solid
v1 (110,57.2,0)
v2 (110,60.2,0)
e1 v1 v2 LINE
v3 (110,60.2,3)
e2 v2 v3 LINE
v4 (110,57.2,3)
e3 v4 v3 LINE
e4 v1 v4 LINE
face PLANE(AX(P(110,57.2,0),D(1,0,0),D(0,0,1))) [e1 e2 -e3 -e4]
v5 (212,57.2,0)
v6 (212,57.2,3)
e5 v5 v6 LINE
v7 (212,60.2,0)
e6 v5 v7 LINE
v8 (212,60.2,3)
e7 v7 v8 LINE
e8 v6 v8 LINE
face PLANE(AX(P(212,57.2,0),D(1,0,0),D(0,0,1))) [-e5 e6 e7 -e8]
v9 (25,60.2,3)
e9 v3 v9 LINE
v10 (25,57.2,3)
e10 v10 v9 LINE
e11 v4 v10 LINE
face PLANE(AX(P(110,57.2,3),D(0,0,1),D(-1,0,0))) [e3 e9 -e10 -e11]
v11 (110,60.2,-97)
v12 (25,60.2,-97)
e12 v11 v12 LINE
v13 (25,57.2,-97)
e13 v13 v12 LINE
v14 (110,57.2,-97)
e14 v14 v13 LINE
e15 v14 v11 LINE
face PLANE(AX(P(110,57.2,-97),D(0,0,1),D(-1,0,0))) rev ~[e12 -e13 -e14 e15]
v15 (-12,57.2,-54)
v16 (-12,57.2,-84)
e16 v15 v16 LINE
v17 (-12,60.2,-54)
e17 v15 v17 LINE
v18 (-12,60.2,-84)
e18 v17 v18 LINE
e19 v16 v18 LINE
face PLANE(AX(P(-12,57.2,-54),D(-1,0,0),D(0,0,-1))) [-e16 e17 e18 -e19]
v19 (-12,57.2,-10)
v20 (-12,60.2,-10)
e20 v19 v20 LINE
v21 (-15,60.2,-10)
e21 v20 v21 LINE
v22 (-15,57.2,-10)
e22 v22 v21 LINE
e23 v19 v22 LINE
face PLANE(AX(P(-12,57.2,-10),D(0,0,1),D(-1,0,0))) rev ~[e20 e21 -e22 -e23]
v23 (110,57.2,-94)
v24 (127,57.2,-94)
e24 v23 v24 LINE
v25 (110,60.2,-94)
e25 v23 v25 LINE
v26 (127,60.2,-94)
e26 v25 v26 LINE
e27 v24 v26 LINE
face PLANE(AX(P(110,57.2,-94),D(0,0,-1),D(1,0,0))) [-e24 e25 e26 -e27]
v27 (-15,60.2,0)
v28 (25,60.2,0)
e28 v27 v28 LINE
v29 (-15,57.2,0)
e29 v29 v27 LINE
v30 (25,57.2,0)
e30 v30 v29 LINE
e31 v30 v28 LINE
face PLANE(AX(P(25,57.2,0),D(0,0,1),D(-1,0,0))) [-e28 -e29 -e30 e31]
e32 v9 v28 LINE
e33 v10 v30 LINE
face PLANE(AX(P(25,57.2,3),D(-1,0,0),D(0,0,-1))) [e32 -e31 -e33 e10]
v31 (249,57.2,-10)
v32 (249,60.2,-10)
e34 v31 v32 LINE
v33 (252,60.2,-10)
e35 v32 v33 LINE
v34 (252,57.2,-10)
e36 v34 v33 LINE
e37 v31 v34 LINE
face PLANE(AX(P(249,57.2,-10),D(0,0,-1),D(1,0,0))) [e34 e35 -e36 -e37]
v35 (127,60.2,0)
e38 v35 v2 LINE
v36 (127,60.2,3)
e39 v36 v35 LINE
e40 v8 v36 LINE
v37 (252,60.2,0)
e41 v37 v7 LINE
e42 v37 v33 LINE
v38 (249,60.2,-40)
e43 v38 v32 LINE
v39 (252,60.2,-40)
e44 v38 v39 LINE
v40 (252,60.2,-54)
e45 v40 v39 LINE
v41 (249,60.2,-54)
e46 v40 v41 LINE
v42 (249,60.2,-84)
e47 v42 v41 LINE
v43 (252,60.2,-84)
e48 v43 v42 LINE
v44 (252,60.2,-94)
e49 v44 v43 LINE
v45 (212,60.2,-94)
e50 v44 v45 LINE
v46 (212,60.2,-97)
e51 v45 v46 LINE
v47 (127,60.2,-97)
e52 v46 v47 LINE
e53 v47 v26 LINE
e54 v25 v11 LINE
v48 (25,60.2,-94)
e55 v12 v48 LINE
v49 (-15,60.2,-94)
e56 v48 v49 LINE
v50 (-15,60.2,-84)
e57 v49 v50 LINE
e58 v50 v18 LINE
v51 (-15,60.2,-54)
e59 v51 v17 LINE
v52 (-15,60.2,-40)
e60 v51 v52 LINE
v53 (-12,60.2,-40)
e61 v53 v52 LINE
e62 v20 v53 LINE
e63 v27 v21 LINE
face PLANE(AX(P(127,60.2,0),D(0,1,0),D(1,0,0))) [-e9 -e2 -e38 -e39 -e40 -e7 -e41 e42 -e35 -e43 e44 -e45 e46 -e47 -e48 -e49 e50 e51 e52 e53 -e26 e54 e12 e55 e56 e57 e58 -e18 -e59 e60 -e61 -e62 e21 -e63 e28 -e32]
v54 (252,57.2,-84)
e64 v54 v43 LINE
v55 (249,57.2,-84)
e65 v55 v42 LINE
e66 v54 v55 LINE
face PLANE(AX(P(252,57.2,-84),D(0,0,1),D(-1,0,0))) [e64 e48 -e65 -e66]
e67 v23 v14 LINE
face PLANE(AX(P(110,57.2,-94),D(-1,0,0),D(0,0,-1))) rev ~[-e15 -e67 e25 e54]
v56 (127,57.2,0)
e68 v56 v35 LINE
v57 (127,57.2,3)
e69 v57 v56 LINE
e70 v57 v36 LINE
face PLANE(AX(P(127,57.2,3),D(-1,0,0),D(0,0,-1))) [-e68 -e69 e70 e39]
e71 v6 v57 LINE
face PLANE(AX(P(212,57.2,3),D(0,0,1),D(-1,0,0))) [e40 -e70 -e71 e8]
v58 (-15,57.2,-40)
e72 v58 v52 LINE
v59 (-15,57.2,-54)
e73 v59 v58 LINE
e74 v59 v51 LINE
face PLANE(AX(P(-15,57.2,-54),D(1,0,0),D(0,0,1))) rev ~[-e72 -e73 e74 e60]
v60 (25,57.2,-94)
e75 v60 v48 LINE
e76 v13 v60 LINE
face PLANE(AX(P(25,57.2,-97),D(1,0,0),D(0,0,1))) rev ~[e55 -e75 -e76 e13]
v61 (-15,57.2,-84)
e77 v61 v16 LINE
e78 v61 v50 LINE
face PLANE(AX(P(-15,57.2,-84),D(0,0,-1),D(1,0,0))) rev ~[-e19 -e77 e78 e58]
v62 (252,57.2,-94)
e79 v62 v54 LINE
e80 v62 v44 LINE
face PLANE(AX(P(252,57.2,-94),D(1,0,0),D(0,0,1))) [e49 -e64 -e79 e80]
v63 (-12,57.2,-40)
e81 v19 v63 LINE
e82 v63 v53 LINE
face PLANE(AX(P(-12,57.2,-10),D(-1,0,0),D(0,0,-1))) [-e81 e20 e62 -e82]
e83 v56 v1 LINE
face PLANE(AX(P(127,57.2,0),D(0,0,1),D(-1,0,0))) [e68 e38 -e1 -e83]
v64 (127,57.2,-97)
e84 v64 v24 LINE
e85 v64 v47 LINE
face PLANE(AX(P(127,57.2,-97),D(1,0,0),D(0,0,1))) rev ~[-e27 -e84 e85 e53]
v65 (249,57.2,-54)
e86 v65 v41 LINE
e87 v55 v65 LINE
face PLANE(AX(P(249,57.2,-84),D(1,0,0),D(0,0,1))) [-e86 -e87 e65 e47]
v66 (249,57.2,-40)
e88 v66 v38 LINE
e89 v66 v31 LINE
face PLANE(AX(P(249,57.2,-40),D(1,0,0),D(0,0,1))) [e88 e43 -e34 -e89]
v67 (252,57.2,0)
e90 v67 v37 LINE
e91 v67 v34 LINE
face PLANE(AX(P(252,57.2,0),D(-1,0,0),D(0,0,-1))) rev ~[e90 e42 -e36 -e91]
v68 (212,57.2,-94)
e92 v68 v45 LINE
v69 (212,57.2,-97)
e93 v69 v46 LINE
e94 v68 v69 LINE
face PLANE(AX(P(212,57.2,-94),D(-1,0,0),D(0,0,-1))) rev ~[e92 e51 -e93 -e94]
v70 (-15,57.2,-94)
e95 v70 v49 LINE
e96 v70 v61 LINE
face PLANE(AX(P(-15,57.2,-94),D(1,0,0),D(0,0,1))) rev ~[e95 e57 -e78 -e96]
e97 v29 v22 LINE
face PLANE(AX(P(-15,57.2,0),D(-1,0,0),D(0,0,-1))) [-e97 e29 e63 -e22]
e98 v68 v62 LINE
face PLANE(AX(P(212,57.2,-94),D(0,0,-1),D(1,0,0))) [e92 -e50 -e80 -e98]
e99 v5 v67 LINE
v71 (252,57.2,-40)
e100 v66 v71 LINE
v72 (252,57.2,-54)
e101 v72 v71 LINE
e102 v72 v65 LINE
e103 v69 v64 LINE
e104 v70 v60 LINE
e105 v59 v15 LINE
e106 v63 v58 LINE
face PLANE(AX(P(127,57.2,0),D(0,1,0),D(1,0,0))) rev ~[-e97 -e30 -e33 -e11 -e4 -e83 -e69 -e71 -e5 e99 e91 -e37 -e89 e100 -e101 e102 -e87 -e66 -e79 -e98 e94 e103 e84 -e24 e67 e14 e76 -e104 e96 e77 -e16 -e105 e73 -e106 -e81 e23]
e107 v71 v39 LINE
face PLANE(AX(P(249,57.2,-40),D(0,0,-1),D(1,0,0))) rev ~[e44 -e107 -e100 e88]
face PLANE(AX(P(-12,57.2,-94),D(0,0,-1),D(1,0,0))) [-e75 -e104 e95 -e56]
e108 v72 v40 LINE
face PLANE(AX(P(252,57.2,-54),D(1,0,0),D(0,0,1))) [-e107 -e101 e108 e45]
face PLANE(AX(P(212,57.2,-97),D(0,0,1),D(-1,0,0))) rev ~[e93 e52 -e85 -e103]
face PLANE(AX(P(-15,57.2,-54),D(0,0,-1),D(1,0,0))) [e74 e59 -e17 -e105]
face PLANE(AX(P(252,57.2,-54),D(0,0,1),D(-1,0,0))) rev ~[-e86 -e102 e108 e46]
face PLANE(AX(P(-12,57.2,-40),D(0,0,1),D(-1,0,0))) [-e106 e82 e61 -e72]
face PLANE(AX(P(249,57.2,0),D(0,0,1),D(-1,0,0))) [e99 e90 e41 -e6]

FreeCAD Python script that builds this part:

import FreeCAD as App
import Part
import Sketcher

V = App.Vector

doc = App.newDocument("Part")
body = doc.addObject("PartDesign::Body", "Body")

# Sketch on XZ plane
sketch1 = body.newObject("Sketcher::SketchObject", "Sketch")
sketch1.AttachmentSupport = (doc.getObject("XZ_Plane"), [""])
sketch1.MapMode = "FlatFace"
sketch1.AttachmentOffset = App.Placement(V(0, 0, -57.2), App.Rotation())
sketch1.addGeometry([
    Part.LineSegment(V(212, 0, 0), V(252, 0, 0)),  # 0
    Part.LineSegment(V(252, 0, 0), V(252, -10, 0)),  # 1
    Part.LineSegment(V(252, -10, 0), V(249, -10, 0)),  # 2
    Part.LineSegment(V(249, -10, 0), V(249, -40, 0)),  # 3
    Part.LineSegment(V(249, -40, 0), V(252, -40, 0)),  # 4
    Part.LineSegment(V(252, -40, 0), V(252, -54, 0)),  # 5
    Part.LineSegment(V(252, -54, 0), V(249, -54, 0)),  # 6
    Part.LineSegment(V(249, -54, 0), V(249, -84, 0)),  # 7
    Part.LineSegment(V(249, -84, 0), V(252, -84, 0)),  # 8
    Part.LineSegment(V(252, -84, 0), V(252, -94, 0)),  # 9
    Part.LineSegment(V(252, -94, 0), V(212, -94, 0)),  # 10
    Part.LineSegment(V(212, -94, 0), V(212, -97, 0)),  # 11
    Part.LineSegment(V(212, -97, 0), V(127, -97, 0)),  # 12
    Part.LineSegment(V(127, -97, 0), V(127, -94, 0)),  # 13
    Part.LineSegment(V(127, -94, 0), V(110, -94, 0)),  # 14
    Part.LineSegment(V(110, -94, 0), V(110, -97, 0)),  # 15
    Part.LineSegment(V(110, -97, 0), V(25, -97, 0)),  # 16
    Part.LineSegment(V(25, -97, 0), V(25, -94, 0)),  # 17
    Part.LineSegment(V(25, -94, 0), V(-15, -94, 0)),  # 18
    Part.LineSegment(V(-15, -94, 0), V(-15, -84, 0)),  # 19
    Part.LineSegment(V(-15, -84, 0), V(-12, -84, 0)),  # 20
    Part.LineSegment(V(-12, -84, 0), V(-12, -54, 0)),  # 21
    Part.LineSegment(V(-12, -54, 0), V(-15, -54, 0)),  # 22
    Part.LineSegment(V(-15, -54, 0), V(-15, -40, 0)),  # 23
    Part.LineSegment(V(-15, -40, 0), V(-12, -40, 0)),  # 24
    Part.LineSegment(V(-12, -40, 0), V(-12, -10, 0)),  # 25
    Part.LineSegment(V(-12, -10, 0), V(-15, -10, 0)),  # 26
    Part.LineSegment(V(-15, -10, 0), V(-15, 0, 0)),  # 27
    Part.LineSegment(V(-15, 0, 0), V(25, 0, 0)),  # 28
    Part.LineSegment(V(25, 0, 0), V(25, 3, 0)),  # 29
    Part.LineSegment(V(25, 3, 0), V(110, 3, 0)),  # 30
    Part.LineSegment(V(110, 3, 0), V(110, 0, 0)),  # 31
    Part.LineSegment(V(110, 0, 0), V(127, 0, 0)),  # 32
    Part.LineSegment(V(127, 0, 0), V(127, 3, 0)),  # 33
    Part.LineSegment(V(127, 3, 0), V(212, 3, 0)),  # 34
    Part.LineSegment(V(212, 3, 0), V(212, 0, 0)),  # 35
], False)
sketch1.addConstraint([
    Sketcher.Constraint("Coincident", 0, 2, 1, 1),
    Sketcher.Constraint("Coincident", 1, 2, 2, 1),
    Sketcher.Constraint("Coincident", 2, 2, 3, 1),
    Sketcher.Constraint("Coincident", 3, 2, 4, 1),
    Sketcher.Constraint("Coincident", 4, 2, 5, 1),
    Sketcher.Constraint("Coincident", 5, 2, 6, 1),
    Sketcher.Constraint("Coincident", 6, 2, 7, 1),
    Sketcher.Constraint("Coincident", 7, 2, 8, 1),
    Sketcher.Constraint("Coincident", 8, 2, 9, 1),
    Sketcher.Constraint("Coincident", 9, 2, 10, 1),
    Sketcher.Constraint("Coincident", 10, 2, 11, 1),
    Sketcher.Constraint("Coincident", 11, 2, 12, 1),
    Sketcher.Constraint("Coincident", 12, 2, 13, 1),
    Sketcher.Constraint("Coincident", 13, 2, 14, 1),
    Sketcher.Constraint("Coincident", 14, 2, 15, 1),
    Sketcher.Constraint("Coincident", 15, 2, 16, 1),
    Sketcher.Constraint("Coincident", 16, 2, 17, 1),
    Sketcher.Constraint("Coincident", 17, 2, 18, 1),
    Sketcher.Constraint("Coincident", 18, 2, 19, 1),
    Sketcher.Constraint("Coincident", 19, 2, 20, 1),
    Sketcher.Constraint("Coincident", 20, 2, 21, 1),
    Sketcher.Constraint("Coincident", 21, 2, 22, 1),
    Sketcher.Constraint("Coincident", 22, 2, 23, 1),
    Sketcher.Constraint("Coincident", 23, 2, 24, 1),
    Sketcher.Constraint("Coincident", 24, 2, 25, 1),
    Sketcher.Constraint("Coincident", 25, 2, 26, 1),
    Sketcher.Constraint("Coincident", 26, 2, 27, 1),
    Sketcher.Constraint("Coincident", 27, 2, 28, 1),
    Sketcher.Constraint("Coincident", 28, 2, 29, 1),
    Sketcher.Constraint("Coincident", 29, 2, 30, 1),
    Sketcher.Constraint("Coincident", 30, 2, 31, 1),
    Sketcher.Constraint("Coincident", 31, 2, 32, 1),
    Sketcher.Constraint("Coincident", 32, 2, 33, 1),
    Sketcher.Constraint("Coincident", 33, 2, 34, 1),
    Sketcher.Constraint("Coincident", 34, 2, 35, 1),
    Sketcher.Constraint("Coincident", 35, 2, 0, 1),
    Sketcher.Constraint("Horizontal", 0),
    Sketcher.Constraint("Vertical", 1),
    Sketcher.Constraint("Horizontal", 2),
    Sketcher.Constraint("Vertical", 3),
    Sketcher.Constraint("Horizontal", 4),
    Sketcher.Constraint("Vertical", 5),
    Sketcher.Constraint("Horizontal", 6),
    Sketcher.Constraint("Vertical", 7),
    Sketcher.Constraint("Horizontal", 8),
    Sketcher.Constraint("Vertical", 9),
    Sketcher.Constraint("Horizontal", 10),
    Sketcher.Constraint("Vertical", 11),
    Sketcher.Constraint("Horizontal", 12),
    Sketcher.Constraint("Vertical", 13),
    Sketcher.Constraint("Horizontal", 14),
    Sketcher.Constraint("Vertical", 15),
    Sketcher.Constraint("Horizontal", 16),
    Sketcher.Constraint("Vertical", 17),
    Sketcher.Constraint("Horizontal", 18),
    Sketcher.Constraint("Vertical", 19),
    Sketcher.Constraint("Horizontal", 20),
    Sketcher.Constraint("Vertical", 21),
    Sketcher.Constraint("Horizontal", 22),
    Sketcher.Constraint("Vertical", 23),
    Sketcher.Constraint("Horizontal", 24),
    Sketcher.Constraint("Vertical", 25),
    Sketcher.Constraint("Horizontal", 26),
    Sketcher.Constraint("Vertical", 27),
    Sketcher.Constraint("Horizontal", 28),
    Sketcher.Constraint("Vertical", 29),
    Sketcher.Constraint("Horizontal", 30),
    Sketcher.Constraint("Vertical", 31),
    Sketcher.Constraint("Horizontal", 32),
    Sketcher.Constraint("Vertical", 33),
    Sketcher.Constraint("Horizontal", 34),
    Sketcher.Constraint("Vertical", 35),
    Sketcher.Constraint("PointOnObject", 0, 2, -1),
    Sketcher.Constraint("PointOnObject", 27, 2, -1),
    Sketcher.Constraint("PointOnObject", 31, 2, -1),
    Sketcher.Constraint("Horizontal", 10, 2, 13, 2),
    Sketcher.Constraint("Horizontal", 12, 2, 15, 2),
    Sketcher.Constraint("Horizontal", 14, 2, 17, 2),
    Sketcher.Constraint("Horizontal", 8, 2, 19, 2),
    Sketcher.Constraint("Horizontal", 6, 2, 21, 2),
    Sketcher.Constraint("Horizontal", 4, 2, 23, 2),
    Sketcher.Constraint("Horizontal", 2, 2, 25, 2),
    Sketcher.Constraint("Horizontal", 30, 2, 33, 2),
    Sketcher.Constraint("Vertical", 1, 2, 4, 2),
    Sketcher.Constraint("Vertical", 3, 2, 6, 2),
    Sketcher.Constraint("Vertical", 5, 2, 8, 2),
    Sketcher.Constraint("Vertical", 19, 2, 22, 2),
    Sketcher.Constraint("Vertical", 21, 2, 24, 2),
    Sketcher.Constraint("Vertical", 23, 2, 26, 2),
    Sketcher.Constraint("Vertical", 17, 2, 28, 2),
    Sketcher.Constraint("Vertical", 15, 2, 30, 2),
    Sketcher.Constraint("Vertical", 13, 2, 32, 2),
    Sketcher.Constraint("Vertical", 11, 2, 34, 2),
    Sketcher.Constraint("Equal", 12, 16),
    Sketcher.Constraint("Equal", 10, 18),
    Sketcher.Constraint("Equal", 8, 20),
    Sketcher.Constraint("Equal", 3, 7),
    Sketcher.Constraint("Equal", 1, 9),
    Sketcher.Constraint("Equal", 26, 11),
    Sketcher.Constraint("Equal", 17, 29),
    Sketcher.Constraint("DistanceY", 9, 2, -1, 1, 94.0),
    Sketcher.Constraint("DistanceX", 0, 1, 0, 2, 40.0),
    Sketcher.Constraint("DistanceX", 2, 2, 2, 1, 3.0),
    Sketcher.Constraint("DistanceX", 12, 2, 12, 1, 85.0),
    Sketcher.Constraint("DistanceX", 14, 2, 14, 1, 17.0),
    Sketcher.Constraint("DistanceY", 1, 2, 1, 1, 10.0),
    Sketcher.Constraint("DistanceY", 3, 2, 3, 1, 30.0),
    Sketcher.Constraint("DistanceX", -1, 1, 0, 2, 252.0),
])
pad1 = body.newObject("PartDesign::Pad", "Pad")
pad1.Profile = sketch1
pad1.Length = 3
pad1.Reversed = True

doc.recompute()
